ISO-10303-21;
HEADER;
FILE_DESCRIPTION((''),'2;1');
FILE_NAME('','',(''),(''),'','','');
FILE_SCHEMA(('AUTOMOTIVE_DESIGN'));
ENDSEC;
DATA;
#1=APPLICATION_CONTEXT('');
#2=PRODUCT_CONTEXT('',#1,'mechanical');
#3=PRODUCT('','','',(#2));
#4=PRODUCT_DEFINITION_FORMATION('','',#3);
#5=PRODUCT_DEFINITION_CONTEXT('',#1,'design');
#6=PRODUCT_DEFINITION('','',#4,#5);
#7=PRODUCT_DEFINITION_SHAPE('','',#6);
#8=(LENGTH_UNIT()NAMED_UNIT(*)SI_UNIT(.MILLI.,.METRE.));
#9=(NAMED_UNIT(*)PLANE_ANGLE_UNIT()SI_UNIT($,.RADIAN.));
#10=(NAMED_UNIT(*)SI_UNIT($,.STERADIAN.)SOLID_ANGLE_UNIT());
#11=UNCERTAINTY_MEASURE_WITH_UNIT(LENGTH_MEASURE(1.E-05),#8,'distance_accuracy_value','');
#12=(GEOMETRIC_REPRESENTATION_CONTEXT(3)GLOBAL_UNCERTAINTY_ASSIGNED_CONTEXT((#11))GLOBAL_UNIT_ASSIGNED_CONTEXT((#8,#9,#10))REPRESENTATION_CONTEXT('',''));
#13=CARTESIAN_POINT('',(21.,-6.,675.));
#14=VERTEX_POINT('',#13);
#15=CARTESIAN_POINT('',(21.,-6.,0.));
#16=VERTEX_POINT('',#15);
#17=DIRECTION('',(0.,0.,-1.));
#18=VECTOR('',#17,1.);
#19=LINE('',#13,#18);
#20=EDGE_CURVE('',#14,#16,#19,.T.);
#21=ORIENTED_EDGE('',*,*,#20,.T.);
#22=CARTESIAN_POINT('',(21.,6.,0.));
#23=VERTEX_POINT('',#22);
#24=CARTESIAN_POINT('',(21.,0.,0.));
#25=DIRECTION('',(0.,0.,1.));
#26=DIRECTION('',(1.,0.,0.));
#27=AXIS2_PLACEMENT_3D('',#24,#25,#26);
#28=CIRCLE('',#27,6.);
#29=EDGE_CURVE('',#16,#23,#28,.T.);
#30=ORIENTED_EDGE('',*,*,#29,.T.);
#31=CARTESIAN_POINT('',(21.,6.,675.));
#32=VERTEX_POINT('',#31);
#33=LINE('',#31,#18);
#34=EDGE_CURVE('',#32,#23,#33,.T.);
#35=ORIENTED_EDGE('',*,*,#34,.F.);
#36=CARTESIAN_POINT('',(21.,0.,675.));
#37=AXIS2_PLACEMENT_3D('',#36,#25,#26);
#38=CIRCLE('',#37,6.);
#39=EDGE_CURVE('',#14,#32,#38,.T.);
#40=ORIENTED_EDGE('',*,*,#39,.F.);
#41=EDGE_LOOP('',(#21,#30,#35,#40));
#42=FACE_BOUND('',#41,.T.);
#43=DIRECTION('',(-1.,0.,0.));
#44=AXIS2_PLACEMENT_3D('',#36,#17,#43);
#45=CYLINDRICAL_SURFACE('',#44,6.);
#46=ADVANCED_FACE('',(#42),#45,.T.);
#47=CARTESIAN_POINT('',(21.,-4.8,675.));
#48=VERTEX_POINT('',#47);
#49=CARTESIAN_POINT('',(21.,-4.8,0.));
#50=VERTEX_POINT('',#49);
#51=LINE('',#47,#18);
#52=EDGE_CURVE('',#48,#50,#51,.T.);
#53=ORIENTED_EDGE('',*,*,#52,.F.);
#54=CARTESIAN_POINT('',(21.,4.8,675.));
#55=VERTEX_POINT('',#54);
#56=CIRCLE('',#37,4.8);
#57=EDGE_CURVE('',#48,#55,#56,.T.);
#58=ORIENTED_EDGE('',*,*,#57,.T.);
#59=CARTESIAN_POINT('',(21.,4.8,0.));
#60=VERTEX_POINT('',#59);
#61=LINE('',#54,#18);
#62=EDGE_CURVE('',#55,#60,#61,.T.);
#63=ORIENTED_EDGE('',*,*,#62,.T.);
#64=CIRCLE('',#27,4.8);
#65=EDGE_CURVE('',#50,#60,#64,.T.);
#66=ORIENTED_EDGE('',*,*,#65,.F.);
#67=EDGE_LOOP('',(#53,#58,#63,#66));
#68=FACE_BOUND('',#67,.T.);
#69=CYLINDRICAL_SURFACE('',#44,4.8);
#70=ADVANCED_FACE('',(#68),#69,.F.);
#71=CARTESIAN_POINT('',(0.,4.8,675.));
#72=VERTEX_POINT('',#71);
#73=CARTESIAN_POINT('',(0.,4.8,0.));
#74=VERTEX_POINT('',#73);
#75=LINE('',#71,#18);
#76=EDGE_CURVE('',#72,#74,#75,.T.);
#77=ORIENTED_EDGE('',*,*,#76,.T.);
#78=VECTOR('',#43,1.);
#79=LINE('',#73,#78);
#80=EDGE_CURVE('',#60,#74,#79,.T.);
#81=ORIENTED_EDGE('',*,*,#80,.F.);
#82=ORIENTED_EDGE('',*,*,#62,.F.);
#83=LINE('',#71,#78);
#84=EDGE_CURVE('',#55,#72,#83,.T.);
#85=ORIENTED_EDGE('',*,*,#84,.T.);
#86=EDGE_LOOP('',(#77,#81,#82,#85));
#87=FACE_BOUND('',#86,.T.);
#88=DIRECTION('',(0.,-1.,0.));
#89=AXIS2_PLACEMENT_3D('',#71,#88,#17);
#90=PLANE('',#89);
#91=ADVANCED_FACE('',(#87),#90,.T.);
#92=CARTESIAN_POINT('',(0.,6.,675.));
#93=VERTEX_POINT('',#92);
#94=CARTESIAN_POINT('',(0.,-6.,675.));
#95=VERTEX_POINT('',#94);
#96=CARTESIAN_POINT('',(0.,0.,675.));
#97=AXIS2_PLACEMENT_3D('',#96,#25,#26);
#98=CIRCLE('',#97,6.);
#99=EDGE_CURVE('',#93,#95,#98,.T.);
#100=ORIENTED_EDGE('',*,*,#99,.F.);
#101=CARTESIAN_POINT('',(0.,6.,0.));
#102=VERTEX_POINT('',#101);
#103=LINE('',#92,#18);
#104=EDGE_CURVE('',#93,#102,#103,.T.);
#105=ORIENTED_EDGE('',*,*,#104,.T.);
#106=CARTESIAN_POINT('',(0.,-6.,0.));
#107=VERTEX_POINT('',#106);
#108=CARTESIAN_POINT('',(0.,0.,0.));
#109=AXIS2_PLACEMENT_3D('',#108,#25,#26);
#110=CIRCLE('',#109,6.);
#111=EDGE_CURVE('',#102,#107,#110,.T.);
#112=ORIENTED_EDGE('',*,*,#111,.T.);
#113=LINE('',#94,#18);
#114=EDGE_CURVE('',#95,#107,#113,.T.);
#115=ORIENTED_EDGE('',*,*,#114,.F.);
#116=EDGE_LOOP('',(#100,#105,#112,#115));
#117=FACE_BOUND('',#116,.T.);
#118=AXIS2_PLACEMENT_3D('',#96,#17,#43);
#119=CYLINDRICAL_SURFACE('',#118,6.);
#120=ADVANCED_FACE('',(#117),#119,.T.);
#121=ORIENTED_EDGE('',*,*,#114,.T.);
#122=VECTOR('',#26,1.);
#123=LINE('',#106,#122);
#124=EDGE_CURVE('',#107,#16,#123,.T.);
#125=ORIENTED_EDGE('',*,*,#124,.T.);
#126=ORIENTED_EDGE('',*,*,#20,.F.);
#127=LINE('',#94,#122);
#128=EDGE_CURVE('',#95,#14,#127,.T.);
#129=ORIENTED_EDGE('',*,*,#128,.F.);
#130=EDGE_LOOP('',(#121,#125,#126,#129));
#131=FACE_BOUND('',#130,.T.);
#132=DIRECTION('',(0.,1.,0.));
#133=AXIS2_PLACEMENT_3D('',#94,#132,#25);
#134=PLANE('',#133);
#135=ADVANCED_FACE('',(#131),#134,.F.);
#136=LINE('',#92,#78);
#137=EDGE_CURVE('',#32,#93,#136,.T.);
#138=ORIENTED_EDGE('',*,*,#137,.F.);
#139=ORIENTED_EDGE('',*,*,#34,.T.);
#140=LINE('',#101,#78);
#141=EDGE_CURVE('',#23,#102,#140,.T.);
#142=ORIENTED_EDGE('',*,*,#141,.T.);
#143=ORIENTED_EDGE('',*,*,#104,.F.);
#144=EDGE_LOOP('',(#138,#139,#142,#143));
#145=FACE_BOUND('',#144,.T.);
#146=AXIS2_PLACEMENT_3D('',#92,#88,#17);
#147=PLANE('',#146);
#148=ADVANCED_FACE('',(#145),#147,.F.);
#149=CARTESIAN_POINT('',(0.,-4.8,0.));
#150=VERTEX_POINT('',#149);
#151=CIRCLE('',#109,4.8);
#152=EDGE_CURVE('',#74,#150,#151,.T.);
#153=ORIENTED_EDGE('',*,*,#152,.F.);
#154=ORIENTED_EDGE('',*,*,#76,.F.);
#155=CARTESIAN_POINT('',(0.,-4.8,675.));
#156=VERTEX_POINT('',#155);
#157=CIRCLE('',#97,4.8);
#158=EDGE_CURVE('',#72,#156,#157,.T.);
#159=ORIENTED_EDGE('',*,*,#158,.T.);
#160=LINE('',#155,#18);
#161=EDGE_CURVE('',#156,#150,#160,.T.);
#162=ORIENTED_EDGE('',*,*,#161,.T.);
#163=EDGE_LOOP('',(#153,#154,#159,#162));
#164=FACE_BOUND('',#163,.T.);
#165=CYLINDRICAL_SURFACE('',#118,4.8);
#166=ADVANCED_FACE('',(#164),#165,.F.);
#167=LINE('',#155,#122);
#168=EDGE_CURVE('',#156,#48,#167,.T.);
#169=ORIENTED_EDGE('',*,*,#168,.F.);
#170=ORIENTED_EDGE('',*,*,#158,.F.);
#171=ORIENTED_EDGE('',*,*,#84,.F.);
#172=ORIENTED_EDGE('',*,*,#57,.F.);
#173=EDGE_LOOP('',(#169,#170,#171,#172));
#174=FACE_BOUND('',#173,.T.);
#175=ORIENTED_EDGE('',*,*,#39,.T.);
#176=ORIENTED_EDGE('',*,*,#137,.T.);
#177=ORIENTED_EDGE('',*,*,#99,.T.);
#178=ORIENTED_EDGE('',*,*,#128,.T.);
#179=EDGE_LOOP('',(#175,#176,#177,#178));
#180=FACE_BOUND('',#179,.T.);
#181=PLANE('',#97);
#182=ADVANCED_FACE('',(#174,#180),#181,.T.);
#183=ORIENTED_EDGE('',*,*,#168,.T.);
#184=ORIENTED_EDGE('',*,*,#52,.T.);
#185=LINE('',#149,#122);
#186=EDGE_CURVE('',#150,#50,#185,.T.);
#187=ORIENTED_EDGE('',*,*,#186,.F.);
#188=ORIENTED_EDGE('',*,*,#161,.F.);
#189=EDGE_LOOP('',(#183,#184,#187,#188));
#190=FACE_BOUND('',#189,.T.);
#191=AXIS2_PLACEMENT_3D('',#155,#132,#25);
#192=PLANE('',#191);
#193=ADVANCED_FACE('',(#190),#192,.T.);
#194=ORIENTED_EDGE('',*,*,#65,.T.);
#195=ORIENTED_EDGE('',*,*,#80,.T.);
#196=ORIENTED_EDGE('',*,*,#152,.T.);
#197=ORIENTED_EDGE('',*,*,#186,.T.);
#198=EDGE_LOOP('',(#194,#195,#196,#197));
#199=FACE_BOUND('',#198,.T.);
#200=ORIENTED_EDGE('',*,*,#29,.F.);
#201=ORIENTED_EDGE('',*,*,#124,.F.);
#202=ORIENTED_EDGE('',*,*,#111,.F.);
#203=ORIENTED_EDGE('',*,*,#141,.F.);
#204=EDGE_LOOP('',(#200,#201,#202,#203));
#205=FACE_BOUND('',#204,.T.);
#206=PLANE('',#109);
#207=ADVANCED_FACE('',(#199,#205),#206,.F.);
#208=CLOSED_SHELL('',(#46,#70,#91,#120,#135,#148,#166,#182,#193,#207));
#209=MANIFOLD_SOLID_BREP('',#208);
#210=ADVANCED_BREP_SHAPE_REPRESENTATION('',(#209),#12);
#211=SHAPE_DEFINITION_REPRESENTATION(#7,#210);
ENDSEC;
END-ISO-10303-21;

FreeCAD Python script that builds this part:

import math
import FreeCAD as App
import Part
import Sketcher

doc = App.newDocument("Part")
body = doc.addObject("PartDesign::Body", "Body")

# Sketch on XY plane
sketch1 = body.newObject("Sketcher::SketchObject", "Sketch")
sketch1.AttachmentSupport = (doc.getObject("XY_Plane"), [""])
sketch1.MapMode = "FlatFace"
sketch1.addGeometry([
    Part.LineSegment(App.Vector(21, 6, 0), App.Vector(0, 6, 0)),  # 0
    Part.ArcOfCircle(Part.Circle(App.Vector(0, 0, 0), App.Vector(0, 0, 1), 6), math.radians(90), math.radians(270)),  # 1
    Part.LineSegment(App.Vector(0, -6, 0), App.Vector(21, -6, 0)),  # 2
    Part.ArcOfCircle(Part.Circle(App.Vector(21, 0, 0), App.Vector(0, 0, 1), 6), math.radians(-90), math.radians(90)),  # 3
    Part.LineSegment(App.Vector(0, 4.8, 0), App.Vector(21, 4.8, 0)),  # 4
    Part.ArcOfCircle(Part.Circle(App.Vector(21, 0, 0), App.Vector(0, 0, 1), 4.8), math.radians(-90), math.radians(90)),  # 5
    Part.LineSegment(App.Vector(21, -4.8, 0), App.Vector(0, -4.8, 0)),  # 6
    Part.ArcOfCircle(Part.Circle(App.Vector(0, 0, 0), App.Vector(0, 0, 1), 4.8), math.radians(90), math.radians(270)),  # 7
], False)
sketch1.addConstraint([
    Sketcher.Constraint("Tangent", 0, 2, 1, 1),
    Sketcher.Constraint("Tangent", 1, 2, 2, 1),
    Sketcher.Constraint("Tangent", 2, 2, 3, 1),
    Sketcher.Constraint("Tangent", 3, 2, 0, 1),
    Sketcher.Constraint("Tangent", 4, 2, 5, 2),
    Sketcher.Constraint("Tangent", 5, 1, 6, 1),
    Sketcher.Constraint("Tangent", 6, 2, 7, 2),
    Sketcher.Constraint("Tangent", 7, 1, 4, 1),
    Sketcher.Constraint("Horizontal", 0),
    Sketcher.Constraint("Horizontal", 2),
    Sketcher.Constraint("Horizontal", 4),
    Sketcher.Constraint("Horizontal", 6),
    Sketcher.Constraint("Coincident", 1, 3, -1, 1),
    Sketcher.Constraint("Coincident", 7, 3, -1, 1),
    Sketcher.Constraint("Vertical", 5, 3, 2, 2),
    Sketcher.Constraint("Radius", 1, 6.0),
    Sketcher.Constraint("Radius", 5, 4.8),
    Sketcher.Constraint("DistanceX", 0, 2, 0, 1, 21.0),
])
pad1 = body.newObject("PartDesign::Pad", "Pad")
pad1.Profile = sketch1
pad1.Length = 675

doc.recompute()
